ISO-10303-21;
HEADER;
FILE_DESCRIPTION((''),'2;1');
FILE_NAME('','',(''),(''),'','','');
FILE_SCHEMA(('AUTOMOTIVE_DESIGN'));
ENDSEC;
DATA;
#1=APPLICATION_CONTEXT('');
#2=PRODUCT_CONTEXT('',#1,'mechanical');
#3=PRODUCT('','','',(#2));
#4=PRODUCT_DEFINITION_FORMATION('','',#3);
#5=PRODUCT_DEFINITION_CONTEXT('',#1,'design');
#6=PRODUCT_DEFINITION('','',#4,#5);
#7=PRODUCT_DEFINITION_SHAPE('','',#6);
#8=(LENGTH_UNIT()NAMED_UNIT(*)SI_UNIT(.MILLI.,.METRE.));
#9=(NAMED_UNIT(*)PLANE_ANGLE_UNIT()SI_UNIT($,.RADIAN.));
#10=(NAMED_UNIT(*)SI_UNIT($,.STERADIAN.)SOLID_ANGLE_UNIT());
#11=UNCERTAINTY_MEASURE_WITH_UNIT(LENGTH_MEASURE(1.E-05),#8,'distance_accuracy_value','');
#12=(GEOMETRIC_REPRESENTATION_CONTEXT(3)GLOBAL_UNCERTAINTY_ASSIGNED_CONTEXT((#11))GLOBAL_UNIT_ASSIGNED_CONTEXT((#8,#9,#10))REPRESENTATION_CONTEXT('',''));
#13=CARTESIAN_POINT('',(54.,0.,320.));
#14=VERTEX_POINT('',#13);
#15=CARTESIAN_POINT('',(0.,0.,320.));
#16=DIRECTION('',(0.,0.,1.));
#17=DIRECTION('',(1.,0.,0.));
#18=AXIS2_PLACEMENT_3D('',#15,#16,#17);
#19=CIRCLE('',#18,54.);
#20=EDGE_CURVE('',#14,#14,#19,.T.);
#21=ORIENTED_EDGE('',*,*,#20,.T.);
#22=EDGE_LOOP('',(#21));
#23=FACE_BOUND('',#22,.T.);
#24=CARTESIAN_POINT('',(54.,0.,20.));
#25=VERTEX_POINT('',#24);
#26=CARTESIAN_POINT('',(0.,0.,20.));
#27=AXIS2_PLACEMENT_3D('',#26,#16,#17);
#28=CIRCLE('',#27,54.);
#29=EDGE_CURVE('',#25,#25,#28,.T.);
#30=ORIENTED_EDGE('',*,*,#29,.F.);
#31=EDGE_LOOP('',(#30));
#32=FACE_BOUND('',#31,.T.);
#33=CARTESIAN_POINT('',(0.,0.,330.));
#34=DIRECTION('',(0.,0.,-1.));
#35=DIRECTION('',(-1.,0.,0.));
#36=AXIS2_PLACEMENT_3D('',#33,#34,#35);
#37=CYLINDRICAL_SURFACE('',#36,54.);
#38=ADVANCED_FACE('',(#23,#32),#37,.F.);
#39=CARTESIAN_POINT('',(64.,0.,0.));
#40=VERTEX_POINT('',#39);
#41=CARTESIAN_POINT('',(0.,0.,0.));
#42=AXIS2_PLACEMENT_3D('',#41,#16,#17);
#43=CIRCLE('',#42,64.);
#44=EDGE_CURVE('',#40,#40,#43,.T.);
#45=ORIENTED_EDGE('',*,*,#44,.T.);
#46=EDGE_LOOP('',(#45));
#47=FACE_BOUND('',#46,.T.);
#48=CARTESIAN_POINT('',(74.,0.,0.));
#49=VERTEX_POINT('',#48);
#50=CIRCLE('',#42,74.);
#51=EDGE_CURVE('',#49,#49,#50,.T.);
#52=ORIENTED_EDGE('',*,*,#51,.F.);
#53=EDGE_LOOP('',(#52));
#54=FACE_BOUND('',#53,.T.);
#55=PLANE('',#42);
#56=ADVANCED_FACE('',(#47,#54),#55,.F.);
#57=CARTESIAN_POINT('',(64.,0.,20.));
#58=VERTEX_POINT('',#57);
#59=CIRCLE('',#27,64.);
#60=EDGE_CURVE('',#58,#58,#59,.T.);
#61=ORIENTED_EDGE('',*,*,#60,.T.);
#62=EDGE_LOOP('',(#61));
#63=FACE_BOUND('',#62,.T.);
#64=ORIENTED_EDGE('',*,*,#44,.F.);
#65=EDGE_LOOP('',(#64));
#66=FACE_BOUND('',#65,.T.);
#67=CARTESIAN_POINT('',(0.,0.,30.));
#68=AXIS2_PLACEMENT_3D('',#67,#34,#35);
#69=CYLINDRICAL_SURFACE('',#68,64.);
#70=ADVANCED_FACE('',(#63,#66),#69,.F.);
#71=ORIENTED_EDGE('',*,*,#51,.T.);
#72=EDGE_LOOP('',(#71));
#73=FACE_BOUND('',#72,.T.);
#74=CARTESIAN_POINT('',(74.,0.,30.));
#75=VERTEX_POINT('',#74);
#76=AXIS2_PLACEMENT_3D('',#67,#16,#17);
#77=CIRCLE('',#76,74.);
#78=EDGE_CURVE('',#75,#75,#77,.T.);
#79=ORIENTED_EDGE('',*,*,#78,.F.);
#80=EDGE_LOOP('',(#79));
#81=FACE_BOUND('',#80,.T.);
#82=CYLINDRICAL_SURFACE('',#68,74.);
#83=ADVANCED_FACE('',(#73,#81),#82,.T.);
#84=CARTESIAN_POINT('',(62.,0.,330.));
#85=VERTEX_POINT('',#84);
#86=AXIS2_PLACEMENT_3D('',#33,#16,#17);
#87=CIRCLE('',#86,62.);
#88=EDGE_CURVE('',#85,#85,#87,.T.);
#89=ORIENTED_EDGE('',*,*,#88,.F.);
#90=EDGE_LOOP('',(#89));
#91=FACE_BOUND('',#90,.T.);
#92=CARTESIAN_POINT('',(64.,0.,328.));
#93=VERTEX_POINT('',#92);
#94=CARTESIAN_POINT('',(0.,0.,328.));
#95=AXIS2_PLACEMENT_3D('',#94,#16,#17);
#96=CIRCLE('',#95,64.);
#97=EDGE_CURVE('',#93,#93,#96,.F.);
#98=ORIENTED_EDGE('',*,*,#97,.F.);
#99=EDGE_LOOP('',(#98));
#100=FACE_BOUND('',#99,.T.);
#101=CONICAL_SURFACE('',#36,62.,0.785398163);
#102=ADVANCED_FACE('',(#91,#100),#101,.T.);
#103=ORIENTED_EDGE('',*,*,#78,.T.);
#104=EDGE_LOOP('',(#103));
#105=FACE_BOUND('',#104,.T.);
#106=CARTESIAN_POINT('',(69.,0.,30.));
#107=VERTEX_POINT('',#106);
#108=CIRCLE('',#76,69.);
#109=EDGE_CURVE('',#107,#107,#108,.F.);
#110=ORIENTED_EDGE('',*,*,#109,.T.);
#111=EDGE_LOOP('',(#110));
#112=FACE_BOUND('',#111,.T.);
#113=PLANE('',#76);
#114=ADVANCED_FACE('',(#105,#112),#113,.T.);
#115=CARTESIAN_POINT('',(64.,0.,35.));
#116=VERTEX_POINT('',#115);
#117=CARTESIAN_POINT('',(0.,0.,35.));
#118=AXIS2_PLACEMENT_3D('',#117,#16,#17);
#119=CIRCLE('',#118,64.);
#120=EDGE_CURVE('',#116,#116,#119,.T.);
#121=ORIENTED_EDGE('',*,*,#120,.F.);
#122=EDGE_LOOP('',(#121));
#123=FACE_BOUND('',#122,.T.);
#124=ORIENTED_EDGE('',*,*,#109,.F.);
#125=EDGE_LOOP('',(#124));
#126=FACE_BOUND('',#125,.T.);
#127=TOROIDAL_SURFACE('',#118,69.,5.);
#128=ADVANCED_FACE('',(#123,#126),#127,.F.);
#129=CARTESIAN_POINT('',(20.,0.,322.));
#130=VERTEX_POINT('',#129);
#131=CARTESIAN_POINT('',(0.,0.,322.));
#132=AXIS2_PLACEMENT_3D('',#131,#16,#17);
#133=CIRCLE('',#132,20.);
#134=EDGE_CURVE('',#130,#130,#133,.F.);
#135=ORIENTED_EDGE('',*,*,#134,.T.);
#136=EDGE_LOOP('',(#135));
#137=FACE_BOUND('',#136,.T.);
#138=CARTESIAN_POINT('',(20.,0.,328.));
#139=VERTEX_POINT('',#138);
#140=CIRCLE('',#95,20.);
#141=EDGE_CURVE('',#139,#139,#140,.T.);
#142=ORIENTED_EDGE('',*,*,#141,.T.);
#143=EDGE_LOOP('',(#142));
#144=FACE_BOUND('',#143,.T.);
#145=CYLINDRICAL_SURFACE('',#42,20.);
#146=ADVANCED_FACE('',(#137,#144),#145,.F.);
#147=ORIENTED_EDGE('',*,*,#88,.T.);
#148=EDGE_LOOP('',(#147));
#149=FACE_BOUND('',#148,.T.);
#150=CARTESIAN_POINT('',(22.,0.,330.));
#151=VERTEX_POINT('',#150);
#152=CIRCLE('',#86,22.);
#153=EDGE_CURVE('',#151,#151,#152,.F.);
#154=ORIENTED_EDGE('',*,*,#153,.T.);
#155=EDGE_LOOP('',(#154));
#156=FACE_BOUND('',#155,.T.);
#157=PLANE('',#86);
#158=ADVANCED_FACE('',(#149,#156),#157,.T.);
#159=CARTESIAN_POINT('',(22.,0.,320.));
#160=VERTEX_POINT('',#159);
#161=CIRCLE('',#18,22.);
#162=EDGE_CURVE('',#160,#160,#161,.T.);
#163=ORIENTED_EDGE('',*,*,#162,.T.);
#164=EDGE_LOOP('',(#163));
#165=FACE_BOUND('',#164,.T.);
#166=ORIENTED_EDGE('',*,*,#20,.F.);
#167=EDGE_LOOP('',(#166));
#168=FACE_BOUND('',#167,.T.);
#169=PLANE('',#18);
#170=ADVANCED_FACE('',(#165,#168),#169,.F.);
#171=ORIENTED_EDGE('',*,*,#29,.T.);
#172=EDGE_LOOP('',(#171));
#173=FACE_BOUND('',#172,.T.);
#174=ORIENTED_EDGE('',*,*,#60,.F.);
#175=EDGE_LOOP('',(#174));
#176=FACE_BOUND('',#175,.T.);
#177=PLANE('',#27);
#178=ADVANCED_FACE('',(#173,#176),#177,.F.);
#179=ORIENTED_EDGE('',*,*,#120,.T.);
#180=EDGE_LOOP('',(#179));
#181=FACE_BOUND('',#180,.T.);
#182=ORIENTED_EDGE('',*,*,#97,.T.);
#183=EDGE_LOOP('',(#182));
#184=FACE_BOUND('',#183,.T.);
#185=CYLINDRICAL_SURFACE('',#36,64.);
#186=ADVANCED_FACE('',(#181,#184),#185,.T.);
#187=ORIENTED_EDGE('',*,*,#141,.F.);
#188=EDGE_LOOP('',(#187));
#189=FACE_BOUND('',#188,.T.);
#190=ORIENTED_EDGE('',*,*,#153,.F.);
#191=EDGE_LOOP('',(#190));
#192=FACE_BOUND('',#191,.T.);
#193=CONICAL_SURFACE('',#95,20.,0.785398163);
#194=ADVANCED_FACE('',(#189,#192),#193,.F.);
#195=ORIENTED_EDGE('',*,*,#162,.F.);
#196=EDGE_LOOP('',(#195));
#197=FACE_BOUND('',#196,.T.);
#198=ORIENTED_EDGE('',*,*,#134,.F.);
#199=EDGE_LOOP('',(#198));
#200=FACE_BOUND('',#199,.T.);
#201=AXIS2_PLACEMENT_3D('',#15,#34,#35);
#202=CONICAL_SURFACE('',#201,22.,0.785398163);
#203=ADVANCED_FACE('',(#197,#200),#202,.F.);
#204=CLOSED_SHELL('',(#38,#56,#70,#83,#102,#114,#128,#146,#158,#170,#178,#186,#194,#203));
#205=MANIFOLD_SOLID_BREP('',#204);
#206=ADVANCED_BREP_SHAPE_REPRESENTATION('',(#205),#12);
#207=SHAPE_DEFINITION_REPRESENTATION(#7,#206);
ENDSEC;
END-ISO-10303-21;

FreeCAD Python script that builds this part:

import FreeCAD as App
import Part
import Sketcher

V = App.Vector
Q = App.Units.Quantity


def edges_at(feature, points):
    """Names of the edges that pass closest to the given points."""
    edges = feature.Shape.Edges
    near = lambda p: min(range(len(edges)), key=lambda i: edges[i].distToShape(Part.Vertex(*p))[0])
    return sorted({f"Edge{near(p) + 1}" for p in points})


def faces_at(feature, points):
    """Names of the faces that lie closest to the given points."""
    faces = feature.Shape.Faces
    near = lambda p: min(range(len(faces)), key=lambda i: faces[i].distToShape(Part.Vertex(*p))[0])
    return sorted({f"Face{near(p) + 1}" for p in points})

doc = App.newDocument("Part")
body = doc.addObject("PartDesign::Body", "Body")

# Sketch on XY plane
sketch1 = body.newObject("Sketcher::SketchObject", "Sketch")
sketch1.AttachmentSupport = (doc.getObject("XY_Plane"), [""])
sketch1.MapMode = "FlatFace"
sketch1.addGeometry(Part.Circle(V(0, 0, 0), V(0, 0, 1), 74), False)
sketch1.addConstraint(Sketcher.Constraint("Coincident", 0, 3, -1, 1))
sketch1.addConstraint(Sketcher.Constraint("Diameter", 0, Q("148 mm")))
pad1 = body.newObject("PartDesign::Pad", "Pad")
pad1.Profile = sketch1
pad1.Length = 30

# Sketch on XY plane
sketch2 = body.newObject("Sketcher::SketchObject", "Sketch001")
sketch2.AttachmentSupport = (doc.getObject("XY_Plane"), [""])
sketch2.MapMode = "FlatFace"
sketch2.AttachmentOffset = App.Placement(V(0, 0, 30), App.Rotation())
sketch2.addGeometry(Part.Circle(V(0, 0, 0), V(0, 0, 1), 64), False)
sketch2.addConstraint(Sketcher.Constraint("Coincident", 0, 3, -1, 1))
sketch2.addConstraint(Sketcher.Constraint("Diameter", 0, Q("128 mm")))
pad2 = body.newObject("PartDesign::Pad", "Pad001")
pad2.Profile = sketch2
pad2.Length = 300
doc.recompute()

thickness = body.newObject("PartDesign::Thickness", "Thickness")
thickness.Base = (pad2, faces_at(pad2, [(0, 0, 0)]))
thickness.Value = 10
thickness.Reversed = True
thickness.Join = "Intersection"
doc.recompute()

fillet = body.newObject("PartDesign::Fillet", "Fillet")
fillet.Base = (thickness, edges_at(thickness, [(-64, 0, 30)]))
fillet.Radius = 5
doc.recompute()

chamfer = body.newObject("PartDesign::Chamfer", "Chamfer")
chamfer.Base = (fillet, edges_at(fillet, [(-64, 0, 330)]))
chamfer.Size = 2

# Sketch on XY plane
sketch3 = body.newObject("Sketcher::SketchObject", "Sketch002")
sketch3.AttachmentSupport = (doc.getObject("XY_Plane"), [""])
sketch3.MapMode = "FlatFace"
sketch3.AttachmentOffset = App.Placement(V(0, 0, 330), App.Rotation())
sketch3.addGeometry(Part.Circle(V(0, 0, 0), V(0, 0, 1), 20), False)
sketch3.addConstraint(Sketcher.Constraint("Coincident", 0, 3, -1, 1))
sketch3.addConstraint(Sketcher.Constraint("Diameter", 0, Q("40 mm")))
pocket1 = body.newObject("PartDesign::Pocket", "Pocket")
pocket1.Profile = sketch3
pocket1.Type = "ThroughAll"
doc.recompute()

chamfer2 = body.newObject("PartDesign::Chamfer", "Chamfer001")
chamfer2.Base = (pocket1, edges_at(pocket1, [(-20, 0, 320), (-20, 0, 330)]))
chamfer2.Size = 2

doc.recompute()
